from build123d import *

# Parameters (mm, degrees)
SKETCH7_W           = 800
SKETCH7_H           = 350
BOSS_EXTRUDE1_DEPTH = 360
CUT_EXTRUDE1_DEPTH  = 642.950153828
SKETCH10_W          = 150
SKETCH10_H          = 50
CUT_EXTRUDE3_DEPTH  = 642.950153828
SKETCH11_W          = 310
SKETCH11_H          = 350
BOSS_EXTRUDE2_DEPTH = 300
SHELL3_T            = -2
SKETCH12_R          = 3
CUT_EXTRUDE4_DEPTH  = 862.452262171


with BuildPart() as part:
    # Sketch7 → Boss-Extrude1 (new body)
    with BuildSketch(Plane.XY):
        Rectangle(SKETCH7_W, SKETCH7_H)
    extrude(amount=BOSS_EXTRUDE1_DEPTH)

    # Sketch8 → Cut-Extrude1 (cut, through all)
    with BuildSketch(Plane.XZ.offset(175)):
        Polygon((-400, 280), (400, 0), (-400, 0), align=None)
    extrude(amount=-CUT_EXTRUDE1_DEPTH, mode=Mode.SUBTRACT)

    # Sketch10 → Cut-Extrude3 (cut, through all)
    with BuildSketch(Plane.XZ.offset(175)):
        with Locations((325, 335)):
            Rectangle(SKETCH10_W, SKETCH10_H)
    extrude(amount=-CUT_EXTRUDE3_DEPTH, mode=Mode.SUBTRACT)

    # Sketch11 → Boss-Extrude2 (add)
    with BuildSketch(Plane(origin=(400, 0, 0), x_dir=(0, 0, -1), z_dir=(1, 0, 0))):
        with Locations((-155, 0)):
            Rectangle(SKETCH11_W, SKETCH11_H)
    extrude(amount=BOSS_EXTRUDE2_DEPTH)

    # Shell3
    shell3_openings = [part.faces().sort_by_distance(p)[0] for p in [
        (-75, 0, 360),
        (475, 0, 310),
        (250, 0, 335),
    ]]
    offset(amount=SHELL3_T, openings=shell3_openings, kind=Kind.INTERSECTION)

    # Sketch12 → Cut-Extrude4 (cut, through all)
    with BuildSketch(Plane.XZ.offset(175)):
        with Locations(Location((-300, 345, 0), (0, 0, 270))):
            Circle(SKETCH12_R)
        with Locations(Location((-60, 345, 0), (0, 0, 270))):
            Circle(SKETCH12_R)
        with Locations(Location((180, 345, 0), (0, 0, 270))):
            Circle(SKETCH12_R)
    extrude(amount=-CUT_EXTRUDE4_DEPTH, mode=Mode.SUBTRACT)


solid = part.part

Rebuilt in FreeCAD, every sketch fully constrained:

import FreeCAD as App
import Part
import Sketcher
from FreeCAD import Vector


def faces_at(feature, points):
    """Names of the faces that lie closest to the given points."""
    faces = feature.Shape.Faces
    near = lambda p: min(range(len(faces)), key=lambda i: faces[i].distToShape(Part.Vertex(*p))[0])
    return sorted({f"Face{near(p) + 1}" for p in points})

doc = App.newDocument("Part")
body = doc.addObject("PartDesign::Body", "Body")

sketch1 = body.newObject("Sketcher::SketchObject", "Sketch")
sketch1.AttachmentSupport = (doc.getObject("XY_Plane"), [""])
sketch1.MapMode = "FlatFace"
sketch1.addGeometry([
    Part.LineSegment(Vector(-400, 175, 0), Vector(-400, -175, 0)),
    Part.LineSegment(Vector(-400, -175, 0), Vector(400, -175, 0)),
    Part.LineSegment(Vector(400, -175, 0), Vector(400, 175, 0)),
    Part.LineSegment(Vector(400, 175, 0), Vector(-400, 175, 0)),
], False)
sketch1.addConstraint([
    Sketcher.Constraint("Coincident", 0, 2, 1, 1),
    Sketcher.Constraint("Coincident", 1, 2, 2, 1),
    Sketcher.Constraint("Coincident", 2, 2, 3, 1),
    Sketcher.Constraint("Coincident", 3, 2, 0, 1),
    Sketcher.Constraint("Vertical", 0),
    Sketcher.Constraint("Horizontal", 1),
    Sketcher.Constraint("Vertical", 2),
    Sketcher.Constraint("Horizontal", 3),
    Sketcher.Constraint("Symmetric", 0, 2, 2, 2, -1, 1),
    Sketcher.Constraint("DistanceX", 1, 1, 1, 2, 800.0),
    Sketcher.Constraint("DistanceY", 0, 2, 0, 1, 350.0),
])
pad1 = body.newObject("PartDesign::Pad", "Pad")
pad1.Profile = sketch1
pad1.Length = 360

sketch2 = body.newObject("Sketcher::SketchObject", "Sketch001")
sketch2.AttachmentSupport = (doc.getObject("XZ_Plane"), [""])
sketch2.MapMode = "FlatFace"
sketch2.AttachmentOffset = App.Placement(Vector(0, 0, 175), App.Rotation())
sketch2.addGeometry([
    Part.LineSegment(Vector(400, 0, 0), Vector(-400, 280, 0)),
    Part.LineSegment(Vector(-400, 280, 0), Vector(-400, 0, 0)),
    Part.LineSegment(Vector(-400, 0, 0), Vector(400, 0, 0)),
], False)
sketch2.addConstraint([
    Sketcher.Constraint("Coincident", 0, 2, 1, 1),
    Sketcher.Constraint("Coincident", 1, 2, 2, 1),
    Sketcher.Constraint("Coincident", 2, 2, 0, 1),
    Sketcher.Constraint("Vertical", 1),
    Sketcher.Constraint("Horizontal", 2),
    Sketcher.Constraint("Symmetric", 1, 2, 2, 2, -1, 1),
    Sketcher.Constraint("DistanceX", 2, 1, 2, 2, 800.0),
    Sketcher.Constraint("DistanceY", 1, 2, 1, 1, 280.0),
])
pocket1 = body.newObject("PartDesign::Pocket", "Pocket")
pocket1.Profile = sketch2
pocket1.Type = "ThroughAll"

sketch3 = body.newObject("Sketcher::SketchObject", "Sketch002")
sketch3.AttachmentSupport = (doc.getObject("XZ_Plane"), [""])
sketch3.MapMode = "FlatFace"
sketch3.AttachmentOffset = App.Placement(Vector(0, 0, 175), App.Rotation())
sketch3.addGeometry([
    Part.LineSegment(Vector(250, 360, 0), Vector(250, 310, 0)),
    Part.LineSegment(Vector(250, 310, 0), Vector(400, 310, 0)),
    Part.LineSegment(Vector(400, 310, 0), Vector(400, 360, 0)),
    Part.LineSegment(Vector(400, 360, 0), Vector(250, 360, 0)),
], False)
sketch3.addConstraint([
    Sketcher.Constraint("Coincident", 0, 2, 1, 1),
    Sketcher.Constraint("Coincident", 1, 2, 2, 1),
    Sketcher.Constraint("Coincident", 2, 2, 3, 1),
    Sketcher.Constraint("Coincident", 3, 2, 0, 1),
    Sketcher.Constraint("Vertical", 0),
    Sketcher.Constraint("Horizontal", 1),
    Sketcher.Constraint("Vertical", 2),
    Sketcher.Constraint("Horizontal", 3),
    Sketcher.Constraint("DistanceX", 1, 1, 1, 2, 150.0),
    Sketcher.Constraint("DistanceY", 0, 2, 0, 1, 50.0),
    Sketcher.Constraint("DistanceX", -1, 1, 0, 2, 250.0),
    Sketcher.Constraint("DistanceY", -1, 1, 0, 2, 310.0),
])
pocket2 = body.newObject("PartDesign::Pocket", "Pocket001")
pocket2.Profile = sketch3
pocket2.Type = "ThroughAll"

sketch4 = body.newObject("Sketcher::SketchObject", "Sketch003")
sketch4.AttachmentSupport = (doc.getObject("YZ_Plane"), [""])
sketch4.MapMode = "FlatFace"
sketch4.AttachmentOffset = App.Placement(Vector(0, 0, 400), App.Rotation())
sketch4.addGeometry([
    Part.LineSegment(Vector(175, 310, 0), Vector(-175, 310, 0)),
    Part.LineSegment(Vector(-175, 310, 0), Vector(-175, 0, 0)),
    Part.LineSegment(Vector(-175, 0, 0), Vector(175, 0, 0)),
    Part.LineSegment(Vector(175, 0, 0), Vector(175, 310, 0)),
], False)
sketch4.addConstraint([
    Sketcher.Constraint("Coincident", 0, 2, 1, 1),
    Sketcher.Constraint("Coincident", 1, 2, 2, 1),
    Sketcher.Constraint("Coincident", 2, 2, 3, 1),
    Sketcher.Constraint("Coincident", 3, 2, 0, 1),
    Sketcher.Constraint("Horizontal", 0),
    Sketcher.Constraint("Vertical", 1),
    Sketcher.Constraint("Horizontal", 2),
    Sketcher.Constraint("Vertical", 3),
    Sketcher.Constraint("Symmetric", 1, 2, 2, 2, -1, 1),
    Sketcher.Constraint("DistanceX", 0, 2, 0, 1, 350.0),
    Sketcher.Constraint("DistanceY", 1, 2, 1, 1, 310.0),
])
pad2 = body.newObject("PartDesign::Pad", "Pad001")
pad2.Profile = sketch4
pad2.Length = 300
doc.recompute()

thickness = body.newObject("PartDesign::Thickness", "Thickness")
thickness.Base = (pad2, faces_at(pad2, [(-75, 0, 360), (475, 0, 310), (250, 0, 335)]))
thickness.Value = 2
thickness.Reversed = True
thickness.Join = "Intersection"

sketch5 = body.newObject("Sketcher::SketchObject", "Sketch004")
sketch5.AttachmentSupport = (doc.getObject("XZ_Plane"), [""])
sketch5.MapMode = "FlatFace"
sketch5.AttachmentOffset = App.Placement(Vector(0, 0, 175), App.Rotation())
sketch5.addGeometry([
    Part.Circle(Vector(-300, 345, 0), Vector(0, 0, 1), 3),
    Part.Circle(Vector(-60, 345, 0), Vector(0, 0, 1), 3),
    Part.Circle(Vector(180, 345, 0), Vector(0, 0, 1), 3),
], False)
sketch5.addConstraint([
    Sketcher.Constraint("Equal", 0, 1),
    Sketcher.Constraint("Equal", 1, 2),
    Sketcher.Constraint("Horizontal", 0, 3, 1, 3),
    Sketcher.Constraint("Horizontal", 1, 3, 2, 3),
    Sketcher.Constraint("Diameter", 0, 6.0),
    Sketcher.Constraint("DistanceX", 0, 3, -1, 1, 300.0),
    Sketcher.Constraint("DistanceY", -1, 1, 0, 3, 345.0),
    Sketcher.Constraint("DistanceX", 1, 3, -1, 1, 60.0),
    Sketcher.Constraint("DistanceX", -1, 1, 2, 3, 180.0),
])
pocket3 = body.newObject("PartDesign::Pocket", "Pocket002")
pocket3.Profile = sketch5
pocket3.Type = "ThroughAll"

doc.recompute()
